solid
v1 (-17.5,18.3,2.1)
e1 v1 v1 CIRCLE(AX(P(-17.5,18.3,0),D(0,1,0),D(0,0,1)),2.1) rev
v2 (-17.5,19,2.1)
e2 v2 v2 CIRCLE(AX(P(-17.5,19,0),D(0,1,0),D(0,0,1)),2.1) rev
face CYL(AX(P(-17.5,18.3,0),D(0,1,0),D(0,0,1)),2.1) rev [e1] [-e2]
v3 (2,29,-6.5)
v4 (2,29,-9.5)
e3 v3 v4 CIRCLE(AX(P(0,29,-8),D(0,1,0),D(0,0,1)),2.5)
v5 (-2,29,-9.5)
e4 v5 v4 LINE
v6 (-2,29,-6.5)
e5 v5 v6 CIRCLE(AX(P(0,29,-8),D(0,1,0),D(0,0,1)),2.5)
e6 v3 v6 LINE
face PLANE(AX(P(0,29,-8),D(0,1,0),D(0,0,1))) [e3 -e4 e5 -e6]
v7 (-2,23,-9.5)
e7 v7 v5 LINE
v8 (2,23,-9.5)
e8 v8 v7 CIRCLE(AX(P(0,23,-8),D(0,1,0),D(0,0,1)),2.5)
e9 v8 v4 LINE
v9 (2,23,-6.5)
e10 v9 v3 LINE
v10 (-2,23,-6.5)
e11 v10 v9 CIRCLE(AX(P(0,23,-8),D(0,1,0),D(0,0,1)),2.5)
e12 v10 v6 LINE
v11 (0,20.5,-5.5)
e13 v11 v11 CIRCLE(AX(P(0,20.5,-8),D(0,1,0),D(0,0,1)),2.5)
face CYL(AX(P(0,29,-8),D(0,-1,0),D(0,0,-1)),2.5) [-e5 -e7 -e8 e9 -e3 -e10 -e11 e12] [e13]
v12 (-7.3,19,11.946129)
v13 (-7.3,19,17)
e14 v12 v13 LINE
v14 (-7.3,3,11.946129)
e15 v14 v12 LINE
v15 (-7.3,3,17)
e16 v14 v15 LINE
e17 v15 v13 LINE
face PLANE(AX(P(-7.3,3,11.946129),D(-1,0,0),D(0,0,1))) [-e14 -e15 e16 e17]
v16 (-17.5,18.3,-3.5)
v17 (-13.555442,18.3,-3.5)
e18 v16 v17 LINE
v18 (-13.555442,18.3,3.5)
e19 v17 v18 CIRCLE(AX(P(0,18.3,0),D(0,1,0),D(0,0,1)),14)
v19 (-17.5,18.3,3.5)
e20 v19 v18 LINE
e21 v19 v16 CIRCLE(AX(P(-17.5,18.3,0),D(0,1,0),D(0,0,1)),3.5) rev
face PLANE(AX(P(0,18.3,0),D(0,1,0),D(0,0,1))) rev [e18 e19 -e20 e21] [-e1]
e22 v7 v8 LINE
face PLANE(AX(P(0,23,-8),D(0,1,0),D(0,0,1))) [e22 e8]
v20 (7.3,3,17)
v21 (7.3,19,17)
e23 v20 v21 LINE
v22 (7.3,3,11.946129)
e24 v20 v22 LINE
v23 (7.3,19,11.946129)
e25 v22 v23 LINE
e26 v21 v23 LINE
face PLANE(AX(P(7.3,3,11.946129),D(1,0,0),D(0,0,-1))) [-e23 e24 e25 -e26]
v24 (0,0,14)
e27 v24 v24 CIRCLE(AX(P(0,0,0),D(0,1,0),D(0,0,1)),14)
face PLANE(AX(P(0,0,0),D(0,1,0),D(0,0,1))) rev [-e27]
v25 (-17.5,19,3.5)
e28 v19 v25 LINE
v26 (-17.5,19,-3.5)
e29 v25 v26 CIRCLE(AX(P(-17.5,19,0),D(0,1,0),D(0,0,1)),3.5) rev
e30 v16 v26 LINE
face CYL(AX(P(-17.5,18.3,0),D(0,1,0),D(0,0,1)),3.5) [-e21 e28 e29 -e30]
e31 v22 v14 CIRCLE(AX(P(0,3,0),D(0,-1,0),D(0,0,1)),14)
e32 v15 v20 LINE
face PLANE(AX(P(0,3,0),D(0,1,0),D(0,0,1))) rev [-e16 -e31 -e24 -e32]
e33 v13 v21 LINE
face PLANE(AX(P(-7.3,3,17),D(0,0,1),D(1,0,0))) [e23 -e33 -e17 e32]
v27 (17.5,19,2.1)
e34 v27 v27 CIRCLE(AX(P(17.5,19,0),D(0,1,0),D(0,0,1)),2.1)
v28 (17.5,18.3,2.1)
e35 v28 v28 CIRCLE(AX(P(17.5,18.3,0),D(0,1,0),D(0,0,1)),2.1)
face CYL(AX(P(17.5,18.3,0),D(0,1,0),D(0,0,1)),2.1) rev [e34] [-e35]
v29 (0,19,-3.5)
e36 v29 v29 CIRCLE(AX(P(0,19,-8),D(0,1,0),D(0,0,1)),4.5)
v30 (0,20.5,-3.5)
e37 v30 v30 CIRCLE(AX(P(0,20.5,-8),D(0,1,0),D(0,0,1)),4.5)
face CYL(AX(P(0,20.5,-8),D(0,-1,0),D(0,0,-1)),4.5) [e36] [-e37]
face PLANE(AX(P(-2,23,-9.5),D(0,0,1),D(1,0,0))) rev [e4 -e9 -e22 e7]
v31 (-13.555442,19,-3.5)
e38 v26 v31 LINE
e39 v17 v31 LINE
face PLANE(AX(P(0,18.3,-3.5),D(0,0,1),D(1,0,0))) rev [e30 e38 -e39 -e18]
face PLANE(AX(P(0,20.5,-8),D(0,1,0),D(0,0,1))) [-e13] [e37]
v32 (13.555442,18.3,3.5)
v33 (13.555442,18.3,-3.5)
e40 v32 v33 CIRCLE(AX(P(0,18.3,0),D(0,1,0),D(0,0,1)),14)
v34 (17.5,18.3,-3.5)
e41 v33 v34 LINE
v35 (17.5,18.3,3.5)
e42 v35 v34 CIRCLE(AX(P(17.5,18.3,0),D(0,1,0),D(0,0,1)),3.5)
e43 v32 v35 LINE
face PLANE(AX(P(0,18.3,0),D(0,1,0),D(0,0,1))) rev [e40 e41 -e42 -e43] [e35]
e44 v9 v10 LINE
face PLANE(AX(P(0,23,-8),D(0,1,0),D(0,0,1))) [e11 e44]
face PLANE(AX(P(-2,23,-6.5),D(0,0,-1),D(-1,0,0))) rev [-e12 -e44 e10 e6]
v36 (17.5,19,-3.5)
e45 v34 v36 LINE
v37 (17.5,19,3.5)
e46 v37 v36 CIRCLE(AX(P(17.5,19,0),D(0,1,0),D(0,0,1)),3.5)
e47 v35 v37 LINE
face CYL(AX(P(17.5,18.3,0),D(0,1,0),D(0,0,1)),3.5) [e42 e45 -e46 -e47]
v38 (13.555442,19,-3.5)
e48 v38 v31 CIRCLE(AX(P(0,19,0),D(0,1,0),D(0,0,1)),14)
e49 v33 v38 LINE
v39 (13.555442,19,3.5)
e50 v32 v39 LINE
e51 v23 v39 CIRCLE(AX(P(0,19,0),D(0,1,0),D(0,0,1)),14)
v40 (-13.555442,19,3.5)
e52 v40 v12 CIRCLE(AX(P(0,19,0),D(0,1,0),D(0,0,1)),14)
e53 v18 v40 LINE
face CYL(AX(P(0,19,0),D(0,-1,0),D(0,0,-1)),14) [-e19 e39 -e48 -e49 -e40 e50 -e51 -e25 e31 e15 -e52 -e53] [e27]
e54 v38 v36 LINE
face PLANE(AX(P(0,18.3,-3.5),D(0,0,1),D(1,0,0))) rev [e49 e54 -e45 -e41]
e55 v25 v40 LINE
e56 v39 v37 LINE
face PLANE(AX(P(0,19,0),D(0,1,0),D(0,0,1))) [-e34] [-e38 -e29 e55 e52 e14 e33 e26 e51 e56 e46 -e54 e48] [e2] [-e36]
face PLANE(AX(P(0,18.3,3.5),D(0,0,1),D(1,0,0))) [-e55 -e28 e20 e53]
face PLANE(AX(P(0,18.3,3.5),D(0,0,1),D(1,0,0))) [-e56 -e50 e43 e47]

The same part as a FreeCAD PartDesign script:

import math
import FreeCAD as App
import Part
import Sketcher
from FreeCAD import Vector
Q = App.Units.Quantity

doc = App.newDocument("Part")
body = doc.addObject("PartDesign::Body", "Body")

# Sketch on XZ plane
sketch1 = body.newObject("Sketcher::SketchObject", "Sketch")
sketch1.AttachmentSupport = (doc.getObject("XZ_Plane"), [""])
sketch1.MapMode = "FlatFace"
sketch1.addGeometry(Part.Circle(Vector(0, 0, 0), Vector(0, 0, 1), 14), False)
sketch1.addConstraint([
    Sketcher.Constraint("Coincident", 0, 3, -1, 1),
    Sketcher.Constraint("Diameter", 0, Q("28 mm")),
])
pad1 = body.newObject("PartDesign::Pad", "Pad")
pad1.Profile = sketch1
pad1.Length = 19
pad1.Reversed = True

# Sketch on XZ plane
sketch2 = body.newObject("Sketcher::SketchObject", "Sketch001")
sketch2.AttachmentSupport = (doc.getObject("XZ_Plane"), [""])
sketch2.MapMode = "FlatFace"
sketch2.AttachmentOffset = App.Placement(Vector(0, 0, -18.3), App.Rotation())
sketch2.addGeometry([
    Part.LineSegment(Vector(17.5, -3.5, 0), Vector(13.555442, -3.5, 0)),  # 0
    Part.ArcOfCircle(Part.Circle(Vector(0, 0, 0), Vector(0, 0, 1), 14), math.radians(-14.477512), math.radians(0)),  # 1
    Part.ArcOfCircle(Part.Circle(Vector(0, 0, 0), Vector(0, 0, 1), 14), math.radians(0), math.radians(14.477512)),  # 2
    Part.LineSegment(Vector(13.555442, 3.5, 0), Vector(17.5, 3.5, 0)),  # 3
    Part.ArcOfCircle(Part.Circle(Vector(17.5, 0, 0), Vector(0, 0, 1), 3.5), math.radians(-90), math.radians(90)),  # 4
    Part.Circle(Vector(17.5, 0, 0), Vector(0, 0, 1), 2.1),  # 5
    Part.LineSegment(Vector(-13.555442, -3.5, 0), Vector(-17.5, -3.5, 0)),  # 6
    Part.ArcOfCircle(Part.Circle(Vector(-17.5, 0, 0), Vector(0, 0, 1), 3.5), math.radians(90), math.radians(270)),  # 7
    Part.LineSegment(Vector(-17.5, 3.5, 0), Vector(-13.555442, 3.5, 0)),  # 8
    Part.ArcOfCircle(Part.Circle(Vector(0, 0, 0), Vector(0, 0, 1), 14), math.radians(165.522488), math.radians(194.477512)),  # 9
    Part.Circle(Vector(-17.5, 0, 0), Vector(0, 0, 1), 2.1),  # 10
], False)
sketch2.addConstraint([
    Sketcher.Constraint("Coincident", 0, 2, 1, 1),
    Sketcher.Constraint("Tangent", 1, 2, 2, 1),
    Sketcher.Constraint("Coincident", 2, 2, 3, 1),
    Sketcher.Constraint("Tangent", 3, 2, 4, 2),
    Sketcher.Constraint("Tangent", 4, 1, 0, 1),
    Sketcher.Constraint("Tangent", 6, 2, 7, 2),
    Sketcher.Constraint("Tangent", 7, 1, 8, 1),
    Sketcher.Constraint("Coincident", 8, 2, 9, 1),
    Sketcher.Constraint("Coincident", 9, 2, 6, 1),
    Sketcher.Constraint("Horizontal", 0),
    Sketcher.Constraint("Horizontal", 3),
    Sketcher.Constraint("Horizontal", 6),
    Sketcher.Constraint("Horizontal", 8),
    Sketcher.Constraint("Coincident", 1, 3, -1, 1),
    Sketcher.Constraint("Coincident", 9, 3, -1, 1),
    Sketcher.Constraint("Coincident", 5, 3, 4, 3),
    Sketcher.Constraint("Coincident", 10, 3, 7, 3),
    Sketcher.Constraint("Equal", 1, 2),
    Sketcher.Constraint("Equal", 4, 7),
    Sketcher.Constraint("Equal", 2, 9),
    Sketcher.Constraint("Equal", 5, 10),
    Sketcher.Constraint("Symmetric", 4, 3, 7, 3, -1, 1),
    Sketcher.Constraint("PointOnObject", 4, 3, -1),
    Sketcher.Constraint("PointOnObject", 1, 2, -1),
    Sketcher.Constraint("Radius", 1, Q("14 mm")),
    Sketcher.Constraint("Diameter", 5, Q("4.2 mm")),
    Sketcher.Constraint("Radius", 4, Q("3.5 mm")),
    Sketcher.Constraint("DistanceX", 7, 3, 4, 3, Q("35 mm")),
])
pad2 = body.newObject("PartDesign::Pad", "Pad001")
pad2.Profile = sketch2
pad2.Length = 0.7
pad2.Reversed = True

# Sketch on XZ plane
sketch3 = body.newObject("Sketcher::SketchObject", "Sketch002")
sketch3.AttachmentSupport = (doc.getObject("XZ_Plane"), [""])
sketch3.MapMode = "FlatFace"
sketch3.AttachmentOffset = App.Placement(Vector(0, 0, -3), App.Rotation())
sketch3.addGeometry([
    Part.LineSegment(Vector(-7.3, 11.946129, 0), Vector(-7.3, 17, 0)),
    Part.LineSegment(Vector(-7.3, 17, 0), Vector(7.3, 17, 0)),
    Part.LineSegment(Vector(7.3, 17, 0), Vector(7.3, 11.946129, 0)),
    Part.ArcOfCircle(Part.Circle(Vector(0, 0, 0), Vector(0, 0, 1), 14), math.radians(58.571874), math.radians(121.428126)),
], False)
sketch3.addConstraint([
    Sketcher.Constraint("Coincident", 0, 2, 1, 1),
    Sketcher.Constraint("Coincident", 1, 2, 2, 1),
    Sketcher.Constraint("Coincident", 2, 2, 3, 1),
    Sketcher.Constraint("Coincident", 3, 2, 0, 1),
    Sketcher.Constraint("Vertical", 0),
    Sketcher.Constraint("Horizontal", 1),
    Sketcher.Constraint("Vertical", 2),
    Sketcher.Constraint("Coincident", 3, 3, -1, 1),
    Sketcher.Constraint("Horizontal", 2, 2, 3, 2),
    Sketcher.Constraint("Radius", 3, Q("14 mm")),
    Sketcher.Constraint("DistanceX", 1, 1, 1, 2, Q("14.6 mm")),
    Sketcher.Constraint("DistanceY", -1, 1, 0, 2, Q("17 mm")),
])
pad3 = body.newObject("PartDesign::Pad", "Pad002")
pad3.Profile = sketch3
pad3.Length = 16
pad3.Reversed = True

# Sketch on XZ plane
sketch4 = body.newObject("Sketcher::SketchObject", "Sketch003")
sketch4.AttachmentSupport = (doc.getObject("XZ_Plane"), [""])
sketch4.MapMode = "FlatFace"
sketch4.AttachmentOffset = App.Placement(Vector(0, 0, -19), App.Rotation())
sketch4.addGeometry(Part.Circle(Vector(0, -8, 0), Vector(0, 0, 1), 4.5), False)
sketch4.addConstraint([
    Sketcher.Constraint("PointOnObject", 0, 3, -2),
    Sketcher.Constraint("Diameter", 0, Q("9 mm")),
    Sketcher.Constraint("DistanceY", 0, 3, -1, 1, Q("8 mm")),
])
pad4 = body.newObject("PartDesign::Pad", "Pad003")
pad4.Profile = sketch4
pad4.Length = 1.5
pad4.Reversed = True

# Sketch on XZ plane
sketch5 = body.newObject("Sketcher::SketchObject", "Sketch004")
sketch5.AttachmentSupport = (doc.getObject("XZ_Plane"), [""])
sketch5.MapMode = "FlatFace"
sketch5.AttachmentOffset = App.Placement(Vector(0, 0, -20.5), App.Rotation())
sketch5.addGeometry(Part.Circle(Vector(0, -8, 0), Vector(0, 0, 1), 2.5), False)
sketch5.addConstraint([
    Sketcher.Constraint("PointOnObject", 0, 3, -2),
    Sketcher.Constraint("Diameter", 0, Q("5 mm")),
    Sketcher.Constraint("DistanceY", 0, 3, -1, 1, Q("8 mm")),
])
pad5 = body.newObject("PartDesign::Pad", "Pad004")
pad5.Profile = sketch5
pad5.Length = 8.5
pad5.Reversed = True

# Sketch on XZ plane
sketch6 = body.newObject("Sketcher::SketchObject", "Sketch005")
sketch6.AttachmentSupport = (doc.getObject("XZ_Plane"), [""])
sketch6.MapMode = "FlatFace"
sketch6.AttachmentOffset = App.Placement(Vector(0, 0, -23), App.Rotation())
sketch6.addGeometry([
    Part.LineSegment(Vector(-2, -9.5, 0), Vector(2, -9.5, 0)),
    Part.ArcOfCircle(Part.Circle(Vector(0, -8, 0), Vector(0, 0, 1), 2.5), math.radians(-143.130102), math.radians(-36.869898)),
    Part.LineSegment(Vector(2, -6.5, 0), Vector(-2, -6.5, 0)),
    Part.ArcOfCircle(Part.Circle(Vector(0, -8, 0), Vector(0, 0, 1), 2.5), math.radians(36.869898), math.radians(143.130102)),
], False)
sketch6.addConstraint([
    Sketcher.Constraint("Coincident", 0, 1, 1, 1),
    Sketcher.Constraint("Coincident", 1, 2, 0, 2),
    Sketcher.Constraint("Coincident", 2, 1, 3, 1),
    Sketcher.Constraint("Coincident", 3, 2, 2, 2),
    Sketcher.Constraint("Horizontal", 0),
    Sketcher.Constraint("Horizontal", 2),
    Sketcher.Constraint("Coincident", 3, 3, 1, 3),
    Sketcher.Constraint("Equal", 1, 3),
    Sketcher.Constraint("PointOnObject", 1, 3, -2),
    Sketcher.Constraint("Vertical", 1, 2, 2, 1),
    Sketcher.Constraint("Radius", 1, Q("2.5 mm")),
    Sketcher.Constraint("DistanceX", 0, 1, 0, 2, Q("4 mm")),
    Sketcher.Constraint("DistanceY", 1, 3, -1, 1, Q("8 mm")),
])
pocket1 = body.newObject("PartDesign::Pocket", "Pocket")
pocket1.Profile = sketch6
pocket1.Length = 6

doc.recompute()
